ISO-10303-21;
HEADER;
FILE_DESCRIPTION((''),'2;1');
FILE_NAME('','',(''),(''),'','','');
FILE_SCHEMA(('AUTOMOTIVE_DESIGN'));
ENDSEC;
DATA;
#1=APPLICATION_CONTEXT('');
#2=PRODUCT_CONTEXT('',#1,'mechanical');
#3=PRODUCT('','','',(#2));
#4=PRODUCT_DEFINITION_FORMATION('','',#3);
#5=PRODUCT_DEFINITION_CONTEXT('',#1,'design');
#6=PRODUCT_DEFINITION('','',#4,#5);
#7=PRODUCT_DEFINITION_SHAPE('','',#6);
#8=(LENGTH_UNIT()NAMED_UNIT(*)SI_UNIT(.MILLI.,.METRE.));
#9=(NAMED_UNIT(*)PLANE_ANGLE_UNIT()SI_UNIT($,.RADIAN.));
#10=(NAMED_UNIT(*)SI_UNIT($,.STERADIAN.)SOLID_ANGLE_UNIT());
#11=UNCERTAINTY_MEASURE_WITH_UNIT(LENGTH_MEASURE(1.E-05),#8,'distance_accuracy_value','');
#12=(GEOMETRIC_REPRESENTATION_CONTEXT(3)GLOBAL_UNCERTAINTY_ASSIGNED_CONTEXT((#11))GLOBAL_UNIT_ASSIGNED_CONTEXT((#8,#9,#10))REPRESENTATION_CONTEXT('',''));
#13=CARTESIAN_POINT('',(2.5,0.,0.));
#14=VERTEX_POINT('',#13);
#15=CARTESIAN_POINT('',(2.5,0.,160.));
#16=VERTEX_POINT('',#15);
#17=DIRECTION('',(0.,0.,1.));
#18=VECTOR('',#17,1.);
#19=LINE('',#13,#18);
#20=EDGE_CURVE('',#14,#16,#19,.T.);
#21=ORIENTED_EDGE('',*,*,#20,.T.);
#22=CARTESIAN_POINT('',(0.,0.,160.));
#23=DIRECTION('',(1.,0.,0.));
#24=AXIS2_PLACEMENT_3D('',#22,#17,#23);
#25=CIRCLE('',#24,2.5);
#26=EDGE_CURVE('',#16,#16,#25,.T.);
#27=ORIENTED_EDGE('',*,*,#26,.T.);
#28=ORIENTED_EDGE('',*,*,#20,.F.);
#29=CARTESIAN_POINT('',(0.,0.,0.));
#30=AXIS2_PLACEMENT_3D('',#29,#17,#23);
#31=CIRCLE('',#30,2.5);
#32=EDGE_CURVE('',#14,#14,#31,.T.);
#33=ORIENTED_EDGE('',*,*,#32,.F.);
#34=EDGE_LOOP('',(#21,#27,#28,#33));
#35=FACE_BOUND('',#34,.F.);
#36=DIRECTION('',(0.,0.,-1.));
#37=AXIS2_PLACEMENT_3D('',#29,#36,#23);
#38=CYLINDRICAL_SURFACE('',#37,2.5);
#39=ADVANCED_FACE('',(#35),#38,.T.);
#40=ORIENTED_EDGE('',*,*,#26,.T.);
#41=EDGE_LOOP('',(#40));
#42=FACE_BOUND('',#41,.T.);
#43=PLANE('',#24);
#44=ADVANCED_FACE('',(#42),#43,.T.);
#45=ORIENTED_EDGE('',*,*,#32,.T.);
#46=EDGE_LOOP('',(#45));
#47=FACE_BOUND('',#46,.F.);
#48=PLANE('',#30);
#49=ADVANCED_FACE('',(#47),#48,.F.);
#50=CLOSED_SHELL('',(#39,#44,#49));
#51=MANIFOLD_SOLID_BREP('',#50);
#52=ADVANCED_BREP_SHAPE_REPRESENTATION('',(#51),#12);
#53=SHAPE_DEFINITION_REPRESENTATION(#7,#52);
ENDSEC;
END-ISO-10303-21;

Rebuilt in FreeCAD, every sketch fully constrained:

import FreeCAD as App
import Part
import Sketcher

doc = App.newDocument("Part")
body = doc.addObject("PartDesign::Body", "Body")

# Sketch on XY plane
sketch1 = doc.addObject("Sketcher::SketchObject", "Sketch")
body.addObject(sketch1)
sketch1.AttachmentSupport = (doc.XY_Plane, [""])
sketch1.MapMode = "FlatFace"
sketch1.addGeometry(Part.Circle(App.Vector(0, 0, 0), App.Vector(0, 0, 1), 2.5), False)
sketch1.addConstraint(Sketcher.Constraint("Coincident", 0, 3, -1, 1))
sketch1.addConstraint(Sketcher.Constraint("Diameter", 0, 5.0))
pad1 = doc.addObject("PartDesign::Pad", "Pad")
body.addObject(pad1)
pad1.Profile = sketch1
pad1.Length = 160

doc.recompute()
